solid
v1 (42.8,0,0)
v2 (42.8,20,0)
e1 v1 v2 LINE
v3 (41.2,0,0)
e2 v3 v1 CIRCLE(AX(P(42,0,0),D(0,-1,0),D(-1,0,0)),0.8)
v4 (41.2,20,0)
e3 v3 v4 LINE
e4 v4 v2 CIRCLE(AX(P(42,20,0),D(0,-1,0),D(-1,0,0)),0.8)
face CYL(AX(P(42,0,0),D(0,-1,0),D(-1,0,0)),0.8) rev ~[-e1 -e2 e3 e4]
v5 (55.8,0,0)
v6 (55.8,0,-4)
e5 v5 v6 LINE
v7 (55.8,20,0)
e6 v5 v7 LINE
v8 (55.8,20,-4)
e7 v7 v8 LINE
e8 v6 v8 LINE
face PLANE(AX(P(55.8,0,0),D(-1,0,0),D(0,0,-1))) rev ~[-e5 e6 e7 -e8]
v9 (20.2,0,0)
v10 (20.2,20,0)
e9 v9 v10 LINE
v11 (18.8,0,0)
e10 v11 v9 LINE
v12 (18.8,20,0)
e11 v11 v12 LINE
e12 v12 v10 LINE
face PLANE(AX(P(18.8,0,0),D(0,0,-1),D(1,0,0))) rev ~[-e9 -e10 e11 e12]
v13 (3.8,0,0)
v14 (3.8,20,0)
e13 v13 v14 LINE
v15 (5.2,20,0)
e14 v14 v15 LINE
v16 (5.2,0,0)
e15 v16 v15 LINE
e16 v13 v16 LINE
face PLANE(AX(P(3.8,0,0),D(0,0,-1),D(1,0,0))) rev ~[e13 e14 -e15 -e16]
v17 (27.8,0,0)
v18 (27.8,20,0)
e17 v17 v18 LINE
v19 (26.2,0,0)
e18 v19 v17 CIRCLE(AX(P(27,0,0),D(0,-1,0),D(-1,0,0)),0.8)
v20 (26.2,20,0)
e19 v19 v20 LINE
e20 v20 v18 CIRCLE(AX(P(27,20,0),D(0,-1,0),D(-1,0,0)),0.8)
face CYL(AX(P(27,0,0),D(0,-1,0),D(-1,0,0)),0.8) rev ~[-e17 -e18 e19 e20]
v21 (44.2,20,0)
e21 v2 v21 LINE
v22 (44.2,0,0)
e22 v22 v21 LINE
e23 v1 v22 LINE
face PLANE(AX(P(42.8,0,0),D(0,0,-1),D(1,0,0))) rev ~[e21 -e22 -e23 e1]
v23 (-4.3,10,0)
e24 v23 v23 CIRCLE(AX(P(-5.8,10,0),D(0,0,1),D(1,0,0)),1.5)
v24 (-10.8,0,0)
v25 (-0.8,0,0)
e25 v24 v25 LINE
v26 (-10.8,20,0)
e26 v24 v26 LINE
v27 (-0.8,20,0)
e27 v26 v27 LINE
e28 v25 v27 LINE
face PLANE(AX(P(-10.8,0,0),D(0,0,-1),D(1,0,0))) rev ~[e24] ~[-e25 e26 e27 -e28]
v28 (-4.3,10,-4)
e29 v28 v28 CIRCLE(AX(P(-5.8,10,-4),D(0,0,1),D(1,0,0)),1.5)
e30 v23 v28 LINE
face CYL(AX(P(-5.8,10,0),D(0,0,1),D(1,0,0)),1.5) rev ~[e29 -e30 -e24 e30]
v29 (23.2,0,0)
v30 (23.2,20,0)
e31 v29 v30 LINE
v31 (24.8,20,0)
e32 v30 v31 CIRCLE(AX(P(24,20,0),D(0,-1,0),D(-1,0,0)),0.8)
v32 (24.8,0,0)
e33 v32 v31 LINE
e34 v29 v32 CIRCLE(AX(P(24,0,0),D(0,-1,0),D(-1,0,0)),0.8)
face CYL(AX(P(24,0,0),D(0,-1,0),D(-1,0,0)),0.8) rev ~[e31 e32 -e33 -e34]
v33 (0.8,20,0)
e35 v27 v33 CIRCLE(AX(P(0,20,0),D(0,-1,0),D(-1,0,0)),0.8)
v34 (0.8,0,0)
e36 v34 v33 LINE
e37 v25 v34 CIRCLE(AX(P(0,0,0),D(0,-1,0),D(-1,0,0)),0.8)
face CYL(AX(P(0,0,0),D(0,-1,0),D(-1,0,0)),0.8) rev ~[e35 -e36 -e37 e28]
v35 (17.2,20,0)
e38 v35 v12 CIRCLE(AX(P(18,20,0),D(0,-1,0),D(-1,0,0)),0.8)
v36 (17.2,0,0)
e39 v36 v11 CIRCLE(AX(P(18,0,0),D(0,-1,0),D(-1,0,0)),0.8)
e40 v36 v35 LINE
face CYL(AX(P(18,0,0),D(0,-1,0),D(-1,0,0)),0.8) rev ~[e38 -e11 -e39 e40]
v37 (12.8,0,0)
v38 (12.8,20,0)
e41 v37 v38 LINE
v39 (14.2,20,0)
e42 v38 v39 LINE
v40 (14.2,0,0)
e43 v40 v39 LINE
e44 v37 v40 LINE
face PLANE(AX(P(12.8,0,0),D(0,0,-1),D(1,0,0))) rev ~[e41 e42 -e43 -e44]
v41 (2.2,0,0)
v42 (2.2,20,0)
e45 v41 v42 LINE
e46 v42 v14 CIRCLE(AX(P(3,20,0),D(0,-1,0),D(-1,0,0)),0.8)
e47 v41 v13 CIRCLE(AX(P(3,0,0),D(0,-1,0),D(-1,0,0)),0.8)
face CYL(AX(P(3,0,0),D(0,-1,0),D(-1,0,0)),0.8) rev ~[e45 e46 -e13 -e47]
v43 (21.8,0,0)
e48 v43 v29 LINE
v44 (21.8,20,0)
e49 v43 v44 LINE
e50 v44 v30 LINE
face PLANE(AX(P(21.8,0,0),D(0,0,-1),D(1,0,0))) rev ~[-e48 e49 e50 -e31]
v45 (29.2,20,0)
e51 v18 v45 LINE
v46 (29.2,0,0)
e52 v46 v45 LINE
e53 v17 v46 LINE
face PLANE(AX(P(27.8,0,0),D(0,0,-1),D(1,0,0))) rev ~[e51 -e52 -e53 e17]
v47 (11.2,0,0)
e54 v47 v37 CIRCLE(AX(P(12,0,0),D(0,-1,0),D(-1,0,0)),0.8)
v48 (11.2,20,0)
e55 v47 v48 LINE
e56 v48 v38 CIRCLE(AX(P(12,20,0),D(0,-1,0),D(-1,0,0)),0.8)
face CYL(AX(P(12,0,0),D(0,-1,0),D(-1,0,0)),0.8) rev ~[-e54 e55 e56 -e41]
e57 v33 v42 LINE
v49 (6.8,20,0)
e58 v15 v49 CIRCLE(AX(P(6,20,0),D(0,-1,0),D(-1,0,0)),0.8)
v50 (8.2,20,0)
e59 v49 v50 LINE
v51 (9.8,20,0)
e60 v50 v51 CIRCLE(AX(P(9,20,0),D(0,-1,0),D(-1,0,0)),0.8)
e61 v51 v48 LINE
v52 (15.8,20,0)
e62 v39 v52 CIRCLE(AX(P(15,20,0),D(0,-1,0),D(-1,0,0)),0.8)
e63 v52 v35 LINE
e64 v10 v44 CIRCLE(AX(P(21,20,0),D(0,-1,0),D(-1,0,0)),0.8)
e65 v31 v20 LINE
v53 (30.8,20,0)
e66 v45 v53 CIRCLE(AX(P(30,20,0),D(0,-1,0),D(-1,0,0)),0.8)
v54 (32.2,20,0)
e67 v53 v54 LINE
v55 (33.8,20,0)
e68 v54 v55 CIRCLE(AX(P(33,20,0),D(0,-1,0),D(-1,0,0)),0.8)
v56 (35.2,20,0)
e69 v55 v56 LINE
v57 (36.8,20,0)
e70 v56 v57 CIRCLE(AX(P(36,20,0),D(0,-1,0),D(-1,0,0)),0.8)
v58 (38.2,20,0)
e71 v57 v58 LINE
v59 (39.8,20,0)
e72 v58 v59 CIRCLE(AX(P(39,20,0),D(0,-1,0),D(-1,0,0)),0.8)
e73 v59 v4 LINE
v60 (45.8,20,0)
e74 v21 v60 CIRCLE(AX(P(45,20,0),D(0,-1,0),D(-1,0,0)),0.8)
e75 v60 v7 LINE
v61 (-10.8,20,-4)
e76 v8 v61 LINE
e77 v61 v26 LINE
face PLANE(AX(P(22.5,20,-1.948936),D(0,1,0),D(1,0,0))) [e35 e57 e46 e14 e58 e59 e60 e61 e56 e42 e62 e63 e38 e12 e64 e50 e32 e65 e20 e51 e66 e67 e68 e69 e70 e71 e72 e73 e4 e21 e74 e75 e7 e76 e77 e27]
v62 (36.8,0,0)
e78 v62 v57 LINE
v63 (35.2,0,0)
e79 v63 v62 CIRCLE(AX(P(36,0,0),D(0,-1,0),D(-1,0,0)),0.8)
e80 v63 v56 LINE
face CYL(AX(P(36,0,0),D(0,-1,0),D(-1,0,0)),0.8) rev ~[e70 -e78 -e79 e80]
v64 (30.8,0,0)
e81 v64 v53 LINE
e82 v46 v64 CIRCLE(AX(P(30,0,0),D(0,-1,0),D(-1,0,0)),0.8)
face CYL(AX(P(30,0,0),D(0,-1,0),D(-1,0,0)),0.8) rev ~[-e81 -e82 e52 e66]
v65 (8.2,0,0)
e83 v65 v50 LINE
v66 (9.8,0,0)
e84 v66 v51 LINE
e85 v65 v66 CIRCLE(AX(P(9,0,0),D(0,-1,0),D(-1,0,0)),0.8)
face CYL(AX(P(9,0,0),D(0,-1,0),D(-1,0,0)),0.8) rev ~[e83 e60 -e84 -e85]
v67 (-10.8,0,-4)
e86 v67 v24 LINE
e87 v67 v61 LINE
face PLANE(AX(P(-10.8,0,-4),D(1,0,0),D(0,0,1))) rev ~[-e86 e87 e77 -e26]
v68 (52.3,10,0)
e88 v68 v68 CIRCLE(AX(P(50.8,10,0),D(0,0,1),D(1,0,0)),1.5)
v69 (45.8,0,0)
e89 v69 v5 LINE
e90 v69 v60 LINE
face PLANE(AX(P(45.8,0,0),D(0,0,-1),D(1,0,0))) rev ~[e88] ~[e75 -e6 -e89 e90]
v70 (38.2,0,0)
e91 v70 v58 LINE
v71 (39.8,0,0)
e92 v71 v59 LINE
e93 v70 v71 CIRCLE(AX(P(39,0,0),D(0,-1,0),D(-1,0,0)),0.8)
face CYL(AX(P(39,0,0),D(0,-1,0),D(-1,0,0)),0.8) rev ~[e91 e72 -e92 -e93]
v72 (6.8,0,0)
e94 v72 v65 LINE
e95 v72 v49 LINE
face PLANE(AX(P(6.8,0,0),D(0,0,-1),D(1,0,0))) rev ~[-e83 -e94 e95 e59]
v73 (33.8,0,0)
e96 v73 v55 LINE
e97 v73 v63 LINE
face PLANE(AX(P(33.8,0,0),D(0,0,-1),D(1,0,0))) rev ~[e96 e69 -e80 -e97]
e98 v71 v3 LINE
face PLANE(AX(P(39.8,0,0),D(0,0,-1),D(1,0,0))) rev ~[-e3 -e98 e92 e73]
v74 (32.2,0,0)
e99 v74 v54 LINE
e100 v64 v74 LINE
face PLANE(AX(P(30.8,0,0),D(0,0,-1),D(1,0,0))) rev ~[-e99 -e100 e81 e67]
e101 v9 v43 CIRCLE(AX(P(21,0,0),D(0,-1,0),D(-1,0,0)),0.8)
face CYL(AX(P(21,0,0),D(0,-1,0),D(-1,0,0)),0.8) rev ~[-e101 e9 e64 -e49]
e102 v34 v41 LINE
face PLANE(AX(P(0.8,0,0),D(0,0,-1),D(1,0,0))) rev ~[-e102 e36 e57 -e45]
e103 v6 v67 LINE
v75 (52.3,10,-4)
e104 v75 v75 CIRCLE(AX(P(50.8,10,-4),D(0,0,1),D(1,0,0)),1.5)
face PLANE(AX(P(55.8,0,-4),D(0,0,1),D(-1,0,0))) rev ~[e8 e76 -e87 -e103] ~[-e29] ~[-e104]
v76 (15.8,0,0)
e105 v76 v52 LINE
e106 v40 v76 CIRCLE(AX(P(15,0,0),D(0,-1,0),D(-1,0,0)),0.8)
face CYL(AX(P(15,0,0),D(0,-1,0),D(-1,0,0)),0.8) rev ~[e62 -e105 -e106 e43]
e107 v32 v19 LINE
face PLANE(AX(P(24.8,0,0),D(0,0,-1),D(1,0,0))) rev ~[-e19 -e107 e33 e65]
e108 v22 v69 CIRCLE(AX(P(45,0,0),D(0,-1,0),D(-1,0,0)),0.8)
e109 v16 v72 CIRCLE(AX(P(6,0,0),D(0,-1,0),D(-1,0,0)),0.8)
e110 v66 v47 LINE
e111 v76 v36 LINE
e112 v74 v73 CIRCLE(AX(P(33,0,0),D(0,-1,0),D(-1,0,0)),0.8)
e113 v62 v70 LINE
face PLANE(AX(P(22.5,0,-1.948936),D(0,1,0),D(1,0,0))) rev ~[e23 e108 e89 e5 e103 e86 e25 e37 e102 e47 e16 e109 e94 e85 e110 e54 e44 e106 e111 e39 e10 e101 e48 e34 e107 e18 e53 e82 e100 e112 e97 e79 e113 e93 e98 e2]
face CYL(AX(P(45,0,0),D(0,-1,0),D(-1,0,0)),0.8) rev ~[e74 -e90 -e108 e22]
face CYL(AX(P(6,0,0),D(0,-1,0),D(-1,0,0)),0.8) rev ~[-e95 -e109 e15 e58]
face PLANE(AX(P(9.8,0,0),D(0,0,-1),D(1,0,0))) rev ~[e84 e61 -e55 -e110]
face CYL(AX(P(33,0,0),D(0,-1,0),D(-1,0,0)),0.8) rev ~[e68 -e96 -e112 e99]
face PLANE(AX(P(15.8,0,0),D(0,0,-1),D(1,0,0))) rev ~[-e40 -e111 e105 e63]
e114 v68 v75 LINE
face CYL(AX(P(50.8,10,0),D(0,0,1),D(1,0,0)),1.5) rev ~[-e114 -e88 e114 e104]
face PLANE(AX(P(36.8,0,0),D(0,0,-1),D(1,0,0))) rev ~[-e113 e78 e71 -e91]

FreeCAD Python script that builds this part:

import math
import FreeCAD as App
import Part
import Sketcher
Q = App.Units.Quantity

doc = App.newDocument("Part")
body = doc.addObject("PartDesign::Body", "Body")

# Sketch on XZ plane
sketch1 = doc.addObject("Sketcher::SketchObject", "Sketch")
body.addObject(sketch1)
sketch1.AttachmentSupport = (doc.XZ_Plane, [""])
sketch1.MapMode = "FlatFace"
sketch1.addGeometry(Part.LineSegment(App.Vector(-10.8, 0, 0), App.Vector(-0.8, 0, 0)), False)
sketch1.addGeometry(Part.ArcOfCircle(Part.Circle(App.Vector(0, 0, 0), App.Vector(0, 0, 1), 0.8), math.radians(180), math.radians(360)), False)
sketch1.addGeometry(Part.LineSegment(App.Vector(0.8, 0, 0), App.Vector(2.2, 0, 0)), False)
sketch1.addGeometry(Part.ArcOfCircle(Part.Circle(App.Vector(3, 0, 0), App.Vector(0, 0, 1), 0.8), math.radians(180), math.radians(360)), False)
sketch1.addGeometry(Part.LineSegment(App.Vector(3.8, 0, 0), App.Vector(5.2, 0, 0)), False)
sketch1.addGeometry(Part.ArcOfCircle(Part.Circle(App.Vector(6, 0, 0), App.Vector(0, 0, 1), 0.8), math.radians(180), math.radians(360)), False)
sketch1.addGeometry(Part.LineSegment(App.Vector(6.8, 0, 0), App.Vector(8.2, 0, 0)), False)
sketch1.addGeometry(Part.ArcOfCircle(Part.Circle(App.Vector(9, 0, 0), App.Vector(0, 0, 1), 0.8), math.radians(180), math.radians(360)), False)
sketch1.addGeometry(Part.LineSegment(App.Vector(9.8, 0, 0), App.Vector(11.2, 0, 0)), False)
sketch1.addGeometry(Part.ArcOfCircle(Part.Circle(App.Vector(12, 0, 0), App.Vector(0, 0, 1), 0.8), math.radians(180), math.radians(360)), False)
sketch1.addGeometry(Part.LineSegment(App.Vector(12.8, 0, 0), App.Vector(14.2, 0, 0)), False)
sketch1.addGeometry(Part.ArcOfCircle(Part.Circle(App.Vector(15, 0, 0), App.Vector(0, 0, 1), 0.8), math.radians(180), math.radians(360)), False)
sketch1.addGeometry(Part.LineSegment(App.Vector(15.8, 0, 0), App.Vector(17.2, 0, 0)), False)
sketch1.addGeometry(Part.ArcOfCircle(Part.Circle(App.Vector(18, 0, 0), App.Vector(0, 0, 1), 0.8), math.radians(180), math.radians(360)), False)
sketch1.addGeometry(Part.LineSegment(App.Vector(18.8, 0, 0), App.Vector(20.2, 0, 0)), False)
sketch1.addGeometry(Part.ArcOfCircle(Part.Circle(App.Vector(21, 0, 0), App.Vector(0, 0, 1), 0.8), math.radians(180), math.radians(360)), False)
sketch1.addGeometry(Part.LineSegment(App.Vector(21.8, 0, 0), App.Vector(23.2, 0, 0)), False)
sketch1.addGeometry(Part.ArcOfCircle(Part.Circle(App.Vector(24, 0, 0), App.Vector(0, 0, 1), 0.8), math.radians(180), math.radians(360)), False)
sketch1.addGeometry(Part.LineSegment(App.Vector(24.8, 0, 0), App.Vector(26.2, 0, 0)), False)
sketch1.addGeometry(Part.ArcOfCircle(Part.Circle(App.Vector(27, 0, 0), App.Vector(0, 0, 1), 0.8), math.radians(180), math.radians(360)), False)
sketch1.addGeometry(Part.LineSegment(App.Vector(27.8, 0, 0), App.Vector(29.2, 0, 0)), False)
sketch1.addGeometry(Part.ArcOfCircle(Part.Circle(App.Vector(30, 0, 0), App.Vector(0, 0, 1), 0.8), math.radians(180), math.radians(360)), False)
sketch1.addGeometry(Part.LineSegment(App.Vector(30.8, 0, 0), App.Vector(32.2, 0, 0)), False)
sketch1.addGeometry(Part.ArcOfCircle(Part.Circle(App.Vector(33, 0, 0), App.Vector(0, 0, 1), 0.8), math.radians(180), math.radians(360)), False)
sketch1.addGeometry(Part.LineSegment(App.Vector(33.8, 0, 0), App.Vector(35.2, 0, 0)), False)
sketch1.addGeometry(Part.ArcOfCircle(Part.Circle(App.Vector(36, 0, 0), App.Vector(0, 0, 1), 0.8), math.radians(180), math.radians(360)), False)
sketch1.addGeometry(Part.LineSegment(App.Vector(36.8, 0, 0), App.Vector(38.2, 0, 0)), False)
sketch1.addGeometry(Part.ArcOfCircle(Part.Circle(App.Vector(39, 0, 0), App.Vector(0, 0, 1), 0.8), math.radians(180), math.radians(360)), False)
sketch1.addGeometry(Part.LineSegment(App.Vector(39.8, 0, 0), App.Vector(41.2, 0, 0)), False)
sketch1.addGeometry(Part.ArcOfCircle(Part.Circle(App.Vector(42, 0, 0), App.Vector(0, 0, 1), 0.8), math.radians(180), math.radians(360)), False)
sketch1.addGeometry(Part.LineSegment(App.Vector(42.8, 0, 0), App.Vector(44.2, 0, 0)), False)
sketch1.addGeometry(Part.ArcOfCircle(Part.Circle(App.Vector(45, 0, 0), App.Vector(0, 0, 1), 0.8), math.radians(180), math.radians(360)), False)
sketch1.addGeometry(Part.LineSegment(App.Vector(45.8, 0, 0), App.Vector(55.8, 0, 0)), False)
sketch1.addGeometry(Part.LineSegment(App.Vector(55.8, 0, 0), App.Vector(55.8, -4, 0)), False)
sketch1.addGeometry(Part.LineSegment(App.Vector(55.8, -4, 0), App.Vector(-10.8, -4, 0)), False)
sketch1.addGeometry(Part.LineSegment(App.Vector(-10.8, -4, 0), App.Vector(-10.8, 0, 0)), False)
sketch1.addConstraint(Sketcher.Constraint("Coincident", 0, 2, 1, 1))
sketch1.addConstraint(Sketcher.Constraint("Coincident", 1, 2, 2, 1))
sketch1.addConstraint(Sketcher.Constraint("Coincident", 2, 2, 3, 1))
sketch1.addConstraint(Sketcher.Constraint("Coincident", 3, 2, 4, 1))
sketch1.addConstraint(Sketcher.Constraint("Coincident", 4, 2, 5, 1))
sketch1.addConstraint(Sketcher.Constraint("Coincident", 5, 2, 6, 1))
sketch1.addConstraint(Sketcher.Constraint("Coincident", 6, 2, 7, 1))
sketch1.addConstraint(Sketcher.Constraint("Coincident", 7, 2, 8, 1))
sketch1.addConstraint(Sketcher.Constraint("Coincident", 8, 2, 9, 1))
sketch1.addConstraint(Sketcher.Constraint("Coincident", 9, 2, 10, 1))
sketch1.addConstraint(Sketcher.Constraint("Coincident", 10, 2, 11, 1))
sketch1.addConstraint(Sketcher.Constraint("Coincident", 11, 2, 12, 1))
sketch1.addConstraint(Sketcher.Constraint("Coincident", 12, 2, 13, 1))
sketch1.addConstraint(Sketcher.Constraint("Coincident", 13, 2, 14, 1))
sketch1.addConstraint(Sketcher.Constraint("Coincident", 14, 2, 15, 1))
sketch1.addConstraint(Sketcher.Constraint("Coincident", 15, 2, 16, 1))
sketch1.addConstraint(Sketcher.Constraint("Coincident", 16, 2, 17, 1))
sketch1.addConstraint(Sketcher.Constraint("Coincident", 17, 2, 18, 1))
sketch1.addConstraint(Sketcher.Constraint("Coincident", 18, 2, 19, 1))
sketch1.addConstraint(Sketcher.Constraint("Coincident", 19, 2, 20, 1))
sketch1.addConstraint(Sketcher.Constraint("Coincident", 20, 2, 21, 1))
sketch1.addConstraint(Sketcher.Constraint("Coincident", 21, 2, 22, 1))
sketch1.addConstraint(Sketcher.Constraint("Coincident", 22, 2, 23, 1))
sketch1.addConstraint(Sketcher.Constraint("Coincident", 23, 2, 24, 1))
sketch1.addConstraint(Sketcher.Constraint("Coincident", 24, 2, 25, 1))
sketch1.addConstraint(Sketcher.Constraint("Coincident", 25, 2, 26, 1))
sketch1.addConstraint(Sketcher.Constraint("Coincident", 26, 2, 27, 1))
sketch1.addConstraint(Sketcher.Constraint("Coincident", 27, 2, 28, 1))
sketch1.addConstraint(Sketcher.Constraint("Coincident", 28, 2, 29, 1))
sketch1.addConstraint(Sketcher.Constraint("Coincident", 29, 2, 30, 1))
sketch1.addConstraint(Sketcher.Constraint("Coincident", 30, 2, 31, 1))
sketch1.addConstraint(Sketcher.Constraint("Coincident", 31, 2, 32, 1))
sketch1.addConstraint(Sketcher.Constraint("Coincident", 32, 2, 33, 1))
sketch1.addConstraint(Sketcher.Constraint("Coincident", 33, 2, 34, 1))
sketch1.addConstraint(Sketcher.Constraint("Coincident", 34, 2, 35, 1))
sketch1.addConstraint(Sketcher.Constraint("Coincident", 35, 2, 0, 1))
sketch1.addConstraint(Sketcher.Constraint("Horizontal", 0))
sketch1.addConstraint(Sketcher.Constraint("Horizontal", 2))
sketch1.addConstraint(Sketcher.Constraint("Horizontal", 4))
sketch1.addConstraint(Sketcher.Constraint("Horizontal", 6))
sketch1.addConstraint(Sketcher.Constraint("Horizontal", 8))
sketch1.addConstraint(Sketcher.Constraint("Horizontal", 10))
sketch1.addConstraint(Sketcher.Constraint("Horizontal", 12))
sketch1.addConstraint(Sketcher.Constraint("Horizontal", 14))
sketch1.addConstraint(Sketcher.Constraint("Horizontal", 16))
sketch1.addConstraint(Sketcher.Constraint("Horizontal", 18))
sketch1.addConstraint(Sketcher.Constraint("Horizontal", 20))
sketch1.addConstraint(Sketcher.Constraint("Horizontal", 22))
sketch1.addConstraint(Sketcher.Constraint("Horizontal", 24))
sketch1.addConstraint(Sketcher.Constraint("Horizontal", 26))
sketch1.addConstraint(Sketcher.Constraint("Horizontal", 28))
sketch1.addConstraint(Sketcher.Constraint("Horizontal", 30))
sketch1.addConstraint(Sketcher.Constraint("Horizontal", 32))
sketch1.addConstraint(Sketcher.Constraint("Vertical", 33))
sketch1.addConstraint(Sketcher.Constraint("Horizontal", 34))
sketch1.addConstraint(Sketcher.Constraint("Vertical", 35))
sketch1.addConstraint(Sketcher.Constraint("Coincident", 1, 3, -1, 1))
sketch1.addConstraint(Sketcher.Constraint("Equal", 1, 3))
sketch1.addConstraint(Sketcher.Constraint("Equal", 3, 5))
sketch1.addConstraint(Sketcher.Constraint("Equal", 5, 7))
sketch1.addConstraint(Sketcher.Constraint("Equal", 7, 9))
sketch1.addConstraint(Sketcher.Constraint("Equal", 9, 11))
sketch1.addConstraint(Sketcher.Constraint("Equal", 11, 13))
sketch1.addConstraint(Sketcher.Constraint("Equal", 13, 15))
sketch1.addConstraint(Sketcher.Constraint("Equal", 15, 17))
sketch1.addConstraint(Sketcher.Constraint("Equal", 17, 19))
sketch1.addConstraint(Sketcher.Constraint("Equal", 19, 21))
sketch1.addConstraint(Sketcher.Constraint("Equal", 21, 23))
sketch1.addConstraint(Sketcher.Constraint("Equal", 23, 25))
sketch1.addConstraint(Sketcher.Constraint("Equal", 25, 27))
sketch1.addConstraint(Sketcher.Constraint("Equal", 27, 29))
sketch1.addConstraint(Sketcher.Constraint("Equal", 29, 31))
sketch1.addConstraint(Sketcher.Constraint("PointOnObject", 3, 3, -1))
sketch1.addConstraint(Sketcher.Constraint("PointOnObject", 5, 3, -1))
sketch1.addConstraint(Sketcher.Constraint("PointOnObject", 7, 3, -1))
sketch1.addConstraint(Sketcher.Constraint("PointOnObject", 9, 3, -1))
sketch1.addConstraint(Sketcher.Constraint("PointOnObject", 11, 3, -1))
sketch1.addConstraint(Sketcher.Constraint("PointOnObject", 13, 3, -1))
sketch1.addConstraint(Sketcher.Constraint("PointOnObject", 15, 3, -1))
sketch1.addConstraint(Sketcher.Constraint("PointOnObject", 17, 3, -1))
sketch1.addConstraint(Sketcher.Constraint("PointOnObject", 19, 3, -1))
sketch1.addConstraint(Sketcher.Constraint("PointOnObject", 21, 3, -1))
sketch1.addConstraint(Sketcher.Constraint("PointOnObject", 23, 3, -1))
sketch1.addConstraint(Sketcher.Constraint("PointOnObject", 25, 3, -1))
sketch1.addConstraint(Sketcher.Constraint("PointOnObject", 27, 3, -1))
sketch1.addConstraint(Sketcher.Constraint("PointOnObject", 29, 3, -1))
sketch1.addConstraint(Sketcher.Constraint("PointOnObject", 31, 3, -1))
sketch1.addConstraint(Sketcher.Constraint("PointOnObject", 0, 2, -1))
sketch1.addConstraint(Sketcher.Constraint("PointOnObject", 1, 2, -1))
sketch1.addConstraint(Sketcher.Constraint("PointOnObject", 3, 2, -1))
sketch1.addConstraint(Sketcher.Constraint("PointOnObject", 5, 2, -1))
sketch1.addConstraint(Sketcher.Constraint("PointOnObject", 7, 2, -1))
sketch1.addConstraint(Sketcher.Constraint("PointOnObject", 9, 2, -1))
sketch1.addConstraint(Sketcher.Constraint("PointOnObject", 11, 2, -1))
sketch1.addConstraint(Sketcher.Constraint("PointOnObject", 13, 2, -1))
sketch1.addConstraint(Sketcher.Constraint("PointOnObject", 15, 2, -1))
sketch1.addConstraint(Sketcher.Constraint("PointOnObject", 17, 2, -1))
sketch1.addConstraint(Sketcher.Constraint("PointOnObject", 19, 2, -1))
sketch1.addConstraint(Sketcher.Constraint("PointOnObject", 21, 2, -1))
sketch1.addConstraint(Sketcher.Constraint("PointOnObject", 23, 2, -1))
sketch1.addConstraint(Sketcher.Constraint("PointOnObject", 25, 2, -1))
sketch1.addConstraint(Sketcher.Constraint("PointOnObject", 27, 2, -1))
sketch1.addConstraint(Sketcher.Constraint("PointOnObject", 29, 2, -1))
sketch1.addConstraint(Sketcher.Constraint("PointOnObject", 31, 2, -1))
sketch1.addConstraint(Sketcher.Constraint("Equal", 2, 4))
sketch1.addConstraint(Sketcher.Constraint("Equal", 4, 6))
sketch1.addConstraint(Sketcher.Constraint("Equal", 6, 8))
sketch1.addConstraint(Sketcher.Constraint("Equal", 8, 10))
sketch1.addConstraint(Sketcher.Constraint("Equal", 10, 12))
sketch1.addConstraint(Sketcher.Constraint("Equal", 12, 14))
sketch1.addConstraint(Sketcher.Constraint("Equal", 14, 16))
sketch1.addConstraint(Sketcher.Constraint("Equal", 16, 18))
sketch1.addConstraint(Sketcher.Constraint("Equal", 18, 20))
sketch1.addConstraint(Sketcher.Constraint("Equal", 20, 22))
sketch1.addConstraint(Sketcher.Constraint("Equal", 22, 24))
sketch1.addConstraint(Sketcher.Constraint("Equal", 24, 26))
sketch1.addConstraint(Sketcher.Constraint("Equal", 26, 28))
sketch1.addConstraint(Sketcher.Constraint("Equal", 28, 30))
sketch1.addConstraint(Sketcher.Constraint("Equal", 0, 32))
sketch1.addConstraint(Sketcher.Constraint("Radius", 1, Q("0.8 mm")))
sketch1.addConstraint(Sketcher.Constraint("DistanceX", 0, 1, 0, 2, Q("10 mm")))
sketch1.addConstraint(Sketcher.Constraint("DistanceY", 33, 2, 33, 1, Q("4 mm")))
sketch1.addConstraint(Sketcher.Constraint("DistanceX", 2, 1, 2, 2, Q("1.4 mm")))
pad1 = doc.addObject("PartDesign::Pad", "Pad")
body.addObject(pad1)
pad1.Profile = sketch1
pad1.Length = 20
pad1.Reversed = True

# Sketch on XY plane
sketch2 = doc.addObject("Sketcher::SketchObject", "Sketch001")
body.addObject(sketch2)
sketch2.AttachmentSupport = (doc.XY_Plane, [""])
sketch2.MapMode = "FlatFace"
sketch2.addGeometry(Part.Circle(App.Vector(-5.8, 10, 0), App.Vector(0, 0, 1), 1.5), False)
sketch2.addGeometry(Part.Circle(App.Vector(50.8, 10, 0), App.Vector(0, 0, 1), 1.5), False)
sketch2.addConstraint(Sketcher.Constraint("Equal", 0, 1))
sketch2.addConstraint(Sketcher.Constraint("Horizontal", 0, 3, 1, 3))
sketch2.addConstraint(Sketcher.Constraint("Diameter", 0, Q("3 mm")))
sketch2.addConstraint(Sketcher.Constraint("DistanceY", -1, 1, 0, 3, Q("10 mm")))
sketch2.addConstraint(Sketcher.Constraint("DistanceX", 0, 3, -1, 1, Q("5.8 mm")))
sketch2.addConstraint(Sketcher.Constraint("DistanceX", -1, 1, 1, 3, Q("50.8 mm")))
pocket1 = doc.addObject("PartDesign::Pocket", "Pocket")
body.addObject(pocket1)
pocket1.Profile = sketch2
pocket1.Length = 10

doc.recompute()
